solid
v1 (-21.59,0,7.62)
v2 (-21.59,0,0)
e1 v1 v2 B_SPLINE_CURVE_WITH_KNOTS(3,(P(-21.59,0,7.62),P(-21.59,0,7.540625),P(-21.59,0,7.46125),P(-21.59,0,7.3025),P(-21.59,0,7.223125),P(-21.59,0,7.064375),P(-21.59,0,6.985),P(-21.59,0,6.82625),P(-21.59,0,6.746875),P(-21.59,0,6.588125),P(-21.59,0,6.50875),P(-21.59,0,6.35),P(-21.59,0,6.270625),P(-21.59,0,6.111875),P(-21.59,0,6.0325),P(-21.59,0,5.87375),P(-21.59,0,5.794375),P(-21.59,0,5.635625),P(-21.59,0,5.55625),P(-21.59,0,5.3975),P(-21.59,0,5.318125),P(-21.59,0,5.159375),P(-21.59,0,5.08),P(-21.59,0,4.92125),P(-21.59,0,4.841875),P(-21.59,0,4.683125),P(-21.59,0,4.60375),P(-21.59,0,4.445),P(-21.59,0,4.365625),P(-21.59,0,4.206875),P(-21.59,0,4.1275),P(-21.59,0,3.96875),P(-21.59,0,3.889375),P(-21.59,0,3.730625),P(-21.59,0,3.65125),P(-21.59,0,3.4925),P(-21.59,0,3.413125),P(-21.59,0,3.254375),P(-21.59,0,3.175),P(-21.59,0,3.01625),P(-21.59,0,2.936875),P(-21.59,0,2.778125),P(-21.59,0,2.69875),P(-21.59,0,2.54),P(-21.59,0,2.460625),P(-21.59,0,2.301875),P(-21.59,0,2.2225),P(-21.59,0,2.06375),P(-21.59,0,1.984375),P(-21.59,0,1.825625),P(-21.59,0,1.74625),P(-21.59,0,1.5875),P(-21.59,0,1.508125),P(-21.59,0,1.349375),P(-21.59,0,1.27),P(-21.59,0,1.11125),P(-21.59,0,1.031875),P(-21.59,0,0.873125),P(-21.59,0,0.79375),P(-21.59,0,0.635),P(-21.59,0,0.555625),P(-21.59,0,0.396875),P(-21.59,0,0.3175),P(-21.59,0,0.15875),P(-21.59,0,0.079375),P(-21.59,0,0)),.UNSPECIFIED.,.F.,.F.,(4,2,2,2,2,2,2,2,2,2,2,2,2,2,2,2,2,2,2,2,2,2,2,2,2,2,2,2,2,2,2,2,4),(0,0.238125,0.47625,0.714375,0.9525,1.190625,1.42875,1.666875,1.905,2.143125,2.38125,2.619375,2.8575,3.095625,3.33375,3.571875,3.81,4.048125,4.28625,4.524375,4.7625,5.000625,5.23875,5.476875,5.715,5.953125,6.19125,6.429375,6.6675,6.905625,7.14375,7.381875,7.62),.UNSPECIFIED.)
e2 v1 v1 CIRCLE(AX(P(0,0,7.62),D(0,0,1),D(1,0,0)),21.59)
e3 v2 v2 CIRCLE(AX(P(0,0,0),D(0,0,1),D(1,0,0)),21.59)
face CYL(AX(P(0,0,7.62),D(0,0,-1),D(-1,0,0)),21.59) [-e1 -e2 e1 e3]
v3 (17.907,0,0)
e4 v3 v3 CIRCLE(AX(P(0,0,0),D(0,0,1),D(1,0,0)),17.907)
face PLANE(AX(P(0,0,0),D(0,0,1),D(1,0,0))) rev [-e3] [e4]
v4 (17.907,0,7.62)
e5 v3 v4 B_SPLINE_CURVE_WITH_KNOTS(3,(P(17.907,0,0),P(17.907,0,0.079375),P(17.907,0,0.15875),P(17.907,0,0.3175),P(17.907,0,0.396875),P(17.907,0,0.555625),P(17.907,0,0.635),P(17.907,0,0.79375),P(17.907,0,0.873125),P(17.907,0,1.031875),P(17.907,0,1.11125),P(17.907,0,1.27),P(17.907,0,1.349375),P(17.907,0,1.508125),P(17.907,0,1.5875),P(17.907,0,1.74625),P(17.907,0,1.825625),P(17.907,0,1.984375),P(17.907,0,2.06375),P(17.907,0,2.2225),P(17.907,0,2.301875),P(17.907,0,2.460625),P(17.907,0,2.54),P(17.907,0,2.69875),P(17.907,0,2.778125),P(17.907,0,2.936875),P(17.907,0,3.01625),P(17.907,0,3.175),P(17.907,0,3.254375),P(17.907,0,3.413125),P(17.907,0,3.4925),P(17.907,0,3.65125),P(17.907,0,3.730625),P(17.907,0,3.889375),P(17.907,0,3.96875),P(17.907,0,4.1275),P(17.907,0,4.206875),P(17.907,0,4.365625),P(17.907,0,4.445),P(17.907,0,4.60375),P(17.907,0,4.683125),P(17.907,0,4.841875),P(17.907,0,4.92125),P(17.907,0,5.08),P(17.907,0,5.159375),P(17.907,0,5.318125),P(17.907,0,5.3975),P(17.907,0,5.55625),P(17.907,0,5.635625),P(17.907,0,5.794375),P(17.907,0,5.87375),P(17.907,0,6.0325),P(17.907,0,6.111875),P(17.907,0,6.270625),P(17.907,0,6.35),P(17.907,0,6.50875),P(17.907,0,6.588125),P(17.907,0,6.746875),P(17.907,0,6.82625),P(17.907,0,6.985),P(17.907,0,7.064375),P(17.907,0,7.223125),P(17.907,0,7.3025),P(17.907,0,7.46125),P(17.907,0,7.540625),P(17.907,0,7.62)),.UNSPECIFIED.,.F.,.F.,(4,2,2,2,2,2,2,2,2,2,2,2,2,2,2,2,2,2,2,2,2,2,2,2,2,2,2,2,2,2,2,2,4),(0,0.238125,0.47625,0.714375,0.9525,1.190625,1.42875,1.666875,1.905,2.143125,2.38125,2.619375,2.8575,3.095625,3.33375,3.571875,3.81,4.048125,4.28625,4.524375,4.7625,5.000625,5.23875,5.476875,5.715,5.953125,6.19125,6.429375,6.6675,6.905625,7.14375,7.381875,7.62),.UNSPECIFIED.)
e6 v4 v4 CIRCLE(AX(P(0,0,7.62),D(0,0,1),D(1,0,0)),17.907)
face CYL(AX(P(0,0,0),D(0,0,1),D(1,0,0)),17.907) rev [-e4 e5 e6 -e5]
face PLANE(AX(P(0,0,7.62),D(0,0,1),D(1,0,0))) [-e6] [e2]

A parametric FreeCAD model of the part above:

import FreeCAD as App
import Part
import Sketcher
from FreeCAD import Vector
Q = App.Units.Quantity

doc = App.newDocument("Part")
body = doc.addObject("PartDesign::Body", "Body")

# Sketch on XY plane
sketch1 = body.newObject("Sketcher::SketchObject", "Sketch")
sketch1.AttachmentSupport = (doc.getObject("XY_Plane"), [""])
sketch1.MapMode = "FlatFace"
sketch1.addGeometry(Part.Circle(Vector(0, 0, 0), Vector(0, 0, 1), 22), False)
sketch1.addConstraint(Sketcher.Constraint("Coincident", 0, 3, -1, 1))
sketch1.addConstraint(Sketcher.Constraint("Diameter", 0, Q("1.7 in")))
pad1 = body.newObject("PartDesign::Pad", "Pad")
pad1.Profile = sketch1
pad1.Length = Q("0.3 in")

# Sketch on XY plane
sketch2 = body.newObject("Sketcher::SketchObject", "Sketch001")
sketch2.AttachmentSupport = (doc.getObject("XY_Plane"), [""])
sketch2.MapMode = "FlatFace"
sketch2.AttachmentOffset = App.Placement(Vector(0, 0, 0.3 * 25.4), App.Rotation())
sketch2.addGeometry(Part.Circle(Vector(0, 0, 0), Vector(0, 0, 1), 18), False)
sketch2.addConstraint(Sketcher.Constraint("Coincident", 0, 3, -1, 1))
sketch2.addConstraint(Sketcher.Constraint("Diameter", 0, Q("1.41 in")))
pocket1 = body.newObject("PartDesign::Pocket", "Pocket")
pocket1.Profile = sketch2
pocket1.Length = Q("0.3 in")

doc.recompute()
